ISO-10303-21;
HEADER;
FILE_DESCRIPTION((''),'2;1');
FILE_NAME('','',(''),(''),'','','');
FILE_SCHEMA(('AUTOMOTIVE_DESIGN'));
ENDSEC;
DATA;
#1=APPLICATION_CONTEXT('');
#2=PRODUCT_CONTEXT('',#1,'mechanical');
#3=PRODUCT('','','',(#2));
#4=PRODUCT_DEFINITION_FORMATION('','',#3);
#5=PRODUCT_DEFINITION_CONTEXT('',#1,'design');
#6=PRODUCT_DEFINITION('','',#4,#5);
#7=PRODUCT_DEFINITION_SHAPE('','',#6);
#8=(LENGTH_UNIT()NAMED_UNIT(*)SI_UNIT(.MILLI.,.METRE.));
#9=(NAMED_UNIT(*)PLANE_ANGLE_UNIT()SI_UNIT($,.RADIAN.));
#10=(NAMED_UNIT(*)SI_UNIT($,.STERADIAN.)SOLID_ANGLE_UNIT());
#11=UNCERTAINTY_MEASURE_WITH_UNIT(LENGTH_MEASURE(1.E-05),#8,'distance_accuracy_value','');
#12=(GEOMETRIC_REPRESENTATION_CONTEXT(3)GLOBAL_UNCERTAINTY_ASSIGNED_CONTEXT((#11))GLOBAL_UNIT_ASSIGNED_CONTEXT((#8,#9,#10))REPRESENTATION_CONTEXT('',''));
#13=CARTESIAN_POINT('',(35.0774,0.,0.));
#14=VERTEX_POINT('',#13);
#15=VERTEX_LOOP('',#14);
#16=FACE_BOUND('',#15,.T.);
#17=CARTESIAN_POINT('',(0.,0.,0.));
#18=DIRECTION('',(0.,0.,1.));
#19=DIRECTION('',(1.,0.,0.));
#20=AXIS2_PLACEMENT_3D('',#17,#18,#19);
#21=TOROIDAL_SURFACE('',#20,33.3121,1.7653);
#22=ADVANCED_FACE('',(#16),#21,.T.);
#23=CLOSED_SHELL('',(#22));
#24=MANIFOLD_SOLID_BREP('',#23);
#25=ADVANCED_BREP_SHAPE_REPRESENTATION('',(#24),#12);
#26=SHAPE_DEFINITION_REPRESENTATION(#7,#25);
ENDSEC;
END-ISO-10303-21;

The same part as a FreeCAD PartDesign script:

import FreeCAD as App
import Part
import Sketcher

V = App.Vector
Q = App.Units.Quantity

doc = App.newDocument("Part")
body = doc.addObject("PartDesign::Body", "Body")

# Sketch on YZ plane
sketch1 = body.newObject("Sketcher::SketchObject", "Sketch")
sketch1.AttachmentSupport = (doc.getObject("YZ_Plane"), [""])
sketch1.MapMode = "FlatFace"
sketch1.addGeometry(Part.Circle(V(-33.3121, 0, 0), V(0, 0, 1), 1.7653), False)
sketch1.addConstraint([
    Sketcher.Constraint("PointOnObject", 0, 3, -1),
    Sketcher.Constraint("Diameter", 0, Q("0.139 in")),
    Sketcher.Constraint("DistanceX", 0, 3, -1, 1, Q("1.3115 in")),
])
revolution = body.newObject("PartDesign::Revolution", "Revolution")
revolution.Profile = sketch1
revolution.ReferenceAxis = (sketch1, ["V_Axis"])
revolution.Angle = 360

doc.recompute()
